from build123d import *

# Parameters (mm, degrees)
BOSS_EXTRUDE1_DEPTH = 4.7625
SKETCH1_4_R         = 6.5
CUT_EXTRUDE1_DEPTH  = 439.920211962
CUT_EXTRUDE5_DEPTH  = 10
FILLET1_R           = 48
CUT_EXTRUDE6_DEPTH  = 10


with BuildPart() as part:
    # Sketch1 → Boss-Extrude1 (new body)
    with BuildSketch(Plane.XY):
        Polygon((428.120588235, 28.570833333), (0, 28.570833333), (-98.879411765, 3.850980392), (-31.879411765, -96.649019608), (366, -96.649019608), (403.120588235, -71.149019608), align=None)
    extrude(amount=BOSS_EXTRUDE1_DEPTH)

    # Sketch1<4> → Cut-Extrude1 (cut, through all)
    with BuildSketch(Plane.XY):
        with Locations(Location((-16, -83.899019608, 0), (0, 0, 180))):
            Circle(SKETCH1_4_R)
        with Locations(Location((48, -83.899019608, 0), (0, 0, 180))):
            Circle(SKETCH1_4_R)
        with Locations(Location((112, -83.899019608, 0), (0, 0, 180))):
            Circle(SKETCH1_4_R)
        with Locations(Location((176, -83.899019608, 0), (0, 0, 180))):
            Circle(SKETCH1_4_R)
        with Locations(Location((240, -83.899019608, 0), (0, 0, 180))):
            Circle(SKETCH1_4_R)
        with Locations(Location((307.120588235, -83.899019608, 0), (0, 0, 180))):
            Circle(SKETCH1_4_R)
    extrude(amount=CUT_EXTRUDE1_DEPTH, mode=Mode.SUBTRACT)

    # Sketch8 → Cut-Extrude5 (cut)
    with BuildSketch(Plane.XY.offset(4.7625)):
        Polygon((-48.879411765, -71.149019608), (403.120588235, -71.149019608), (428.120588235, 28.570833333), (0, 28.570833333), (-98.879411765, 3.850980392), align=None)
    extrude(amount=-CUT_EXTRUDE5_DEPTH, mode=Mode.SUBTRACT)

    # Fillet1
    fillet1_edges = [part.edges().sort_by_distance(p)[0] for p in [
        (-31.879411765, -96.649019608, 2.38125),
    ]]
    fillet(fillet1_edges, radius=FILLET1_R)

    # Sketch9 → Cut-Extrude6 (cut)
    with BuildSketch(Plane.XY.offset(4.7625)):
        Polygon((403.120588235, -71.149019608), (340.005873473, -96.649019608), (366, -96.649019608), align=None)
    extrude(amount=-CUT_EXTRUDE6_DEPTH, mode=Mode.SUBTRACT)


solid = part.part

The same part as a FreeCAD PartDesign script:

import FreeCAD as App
import Part
import Sketcher
Q = App.Units.Quantity


def edges_at(feature, points):
    """Names of the edges that pass closest to the given points."""
    edges = feature.Shape.Edges
    near = lambda p: min(range(len(edges)), key=lambda i: edges[i].distToShape(Part.Vertex(*p))[0])
    return sorted({f"Edge{near(p) + 1}" for p in points})


def add_polygon(sketch, points):
    """Adds a closed chain of lines whose ends are joined by coincident constraints."""
    first, n = sketch.GeometryCount, len(points)
    for a, b in zip(points, points[1:] + points[:1]):
        sketch.addGeometry(Part.LineSegment(App.Vector(*a, 0), App.Vector(*b, 0)), False)
    for i in range(n):
        sketch.addConstraint(Sketcher.Constraint("Coincident", first + i, 2, first + (i + 1) % n, 1))

doc = App.newDocument("Part")
params = doc.addObject("Spreadsheet::Sheet", "Params")
for row, (alias, value) in enumerate([
    ("pad1_length", "4.7625 mm"),
    ("sketch2_diameter", "13 mm"),
    ("sketch3_width", "452 mm"),
    ("pocket2_length", "10 mm"),
    ("fillet_radius", "48 mm"),
    ("pocket3_length", "10 mm"),
], start=1):
    params.set(f"A{row}", alias)
    params.set(f"B{row}", "=" + value)
    params.setAlias(f"B{row}", alias)

body = doc.addObject("PartDesign::Body", "Body")

# Sketch on XY plane
sketch1 = body.newObject("Sketcher::SketchObject", "Sketch")
sketch1.AttachmentSupport = (doc.getObject("XY_Plane"), [""])
sketch1.MapMode = "FlatFace"
add_polygon(sketch1, [(428, 29), (0, 29), (-99, 4), (-32, -97), (366, -97), (403, -71)])  # lines 0-5
sketch1.addConstraint(Sketcher.Constraint("Horizontal", 0))
sketch1.addConstraint(Sketcher.Constraint("Horizontal", 3))
sketch1.addConstraint(Sketcher.Constraint("PointOnObject", 0, 2, -2))
sketch1.addConstraint(Sketcher.Constraint("DistanceX", -1, 1, 3, 2, 366.0))
sketch1.addConstraint(Sketcher.Constraint("DistanceX", 1, 2, 2, 2, 67.0))
sketch1.addConstraint(Sketcher.Constraint("DistanceX", 2, 2, 4, 2, 435.0))
sketch1.addConstraint(Sketcher.Constraint("DistanceY", 4, 2, 1, 2, 75.0))
sketch1.addConstraint(Sketcher.Constraint("DistanceX", 4, 2, 5, 2, 25.0))
sketch1.addConstraint(Sketcher.Constraint("DistanceY", 2, 2, 1, 2, 100.5))
sketch1.addConstraint(Sketcher.Constraint("DistanceX", 0, 2, 0, 1, 428.120588))
sketch1.addConstraint(Sketcher.Constraint("Distance", 5, 102.805881))
sketch1.addConstraint(Sketcher.Constraint("DistanceY", -1, 1, 1, 2, 3.85098))
pad1 = body.newObject("PartDesign::Pad", "Pad")
pad1.Profile = sketch1
pad1.setExpression("Length", "Params.pad1_length")

# Sketch on XY plane
sketch2 = body.newObject("Sketcher::SketchObject", "Sketch001")
sketch2.AttachmentSupport = (doc.getObject("XY_Plane"), [""])
sketch2.MapMode = "FlatFace"
sketch2.addGeometry(Part.Circle(App.Vector(-16, -84, 0), App.Vector(0, 0, 1), 6), False)
sketch2.addGeometry(Part.Circle(App.Vector(48, -84, 0), App.Vector(0, 0, 1), 6), False)
sketch2.addGeometry(Part.Circle(App.Vector(112, -84, 0), App.Vector(0, 0, 1), 6), False)
sketch2.addGeometry(Part.Circle(App.Vector(176, -84, 0), App.Vector(0, 0, 1), 6), False)
sketch2.addGeometry(Part.Circle(App.Vector(240, -84, 0), App.Vector(0, 0, 1), 6), False)
sketch2.addGeometry(Part.Circle(App.Vector(307, -84, 0), App.Vector(0, 0, 1), 6), False)
sketch2.addConstraint(Sketcher.Constraint("Equal", 0, 1))
sketch2.addConstraint(Sketcher.Constraint("Equal", 1, 2))
sketch2.addConstraint(Sketcher.Constraint("Equal", 2, 3))
sketch2.addConstraint(Sketcher.Constraint("Equal", 3, 4))
sketch2.addConstraint(Sketcher.Constraint("Equal", 4, 5))
sketch2.addConstraint(Sketcher.Constraint("Horizontal", 0, 3, 1, 3))
sketch2.addConstraint(Sketcher.Constraint("Horizontal", 1, 3, 2, 3))
sketch2.addConstraint(Sketcher.Constraint("Horizontal", 2, 3, 3, 3))
sketch2.addConstraint(Sketcher.Constraint("Horizontal", 3, 3, 4, 3))
sketch2.addConstraint(Sketcher.Constraint("Horizontal", 4, 3, 5, 3))
sketch2.addConstraint(Sketcher.Constraint("Diameter", 0, 13.0))
sketch2.addConstraint(Sketcher.Constraint("DistanceX", 0, 3, -1, 1, 16.0))
sketch2.addConstraint(Sketcher.Constraint("DistanceX", -1, 1, 1, 3, 48.0))
sketch2.addConstraint(Sketcher.Constraint("DistanceX", -1, 1, 2, 3, 112.0))
sketch2.addConstraint(Sketcher.Constraint("DistanceX", -1, 1, 3, 3, 176.0))
sketch2.addConstraint(Sketcher.Constraint("DistanceX", -1, 1, 4, 3, 240.0))
sketch2.addConstraint(Sketcher.Constraint("DistanceY", 0, 3, -1, 1, 83.89902))
sketch2.addConstraint(Sketcher.Constraint("DistanceX", -1, 1, 5, 3, 307.120588))
sketch2.setExpression("Constraints[10]", "Params.sketch2_diameter")
pocket1 = body.newObject("PartDesign::Pocket", "Pocket")
pocket1.Profile = sketch2
pocket1.Type = "ThroughAll"
pocket1.Reversed = True

# Sketch on XY plane
sketch3 = body.newObject("Sketcher::SketchObject", "Sketch002")
sketch3.AttachmentSupport = (doc.getObject("XY_Plane"), [""])
sketch3.MapMode = "FlatFace"
sketch3.AttachmentOffset = App.Placement(App.Vector(0, 0, 4.7625), App.Rotation())
add_polygon(sketch3, [(-49, -71), (403, -71), (428, 29), (0, 29), (-99, 4)])  # lines 0-4
sketch3.addConstraint(Sketcher.Constraint("Horizontal", 0))
sketch3.addConstraint(Sketcher.Constraint("Horizontal", 2))
sketch3.addConstraint(Sketcher.Constraint("PointOnObject", 2, 2, -2))
sketch3.addConstraint(Sketcher.Constraint("DistanceX", 0, 1, 0, 2, 452.0))
sketch3.addConstraint(Sketcher.Constraint("DistanceX", 0, 2, 1, 2, 25.0))
sketch3.addConstraint(Sketcher.Constraint("DistanceX", 3, 2, 0, 2, 502.0))
sketch3.addConstraint(Sketcher.Constraint("DistanceY", 0, 2, 3, 2, 75.0))
sketch3.addConstraint(Sketcher.Constraint("DistanceX", 2, 2, 2, 1, 428.120588))
sketch3.addConstraint(Sketcher.Constraint("Distance", 1, 102.805881))
sketch3.addConstraint(Sketcher.Constraint("DistanceY", 0, 2, -1, 1, 71.14902))
sketch3.setExpression("Constraints[8]", "Params.sketch3_width")
pocket2 = body.newObject("PartDesign::Pocket", "Pocket001")
pocket2.Profile = sketch3
pocket2.setExpression("Length", "Params.pocket2_length")
doc.recompute()

fillet = body.newObject("PartDesign::Fillet", "Fillet")
fillet.Base = (pocket2, edges_at(pocket2, [(-31.879, -96.649, 2.381)]))
fillet.setExpression("Radius", "Params.fillet_radius")

# Sketch on XY plane
sketch4 = body.newObject("Sketcher::SketchObject", "Sketch003")
sketch4.AttachmentSupport = (doc.getObject("XY_Plane"), [""])
sketch4.MapMode = "FlatFace"
sketch4.AttachmentOffset = App.Placement(App.Vector(0, 0, 4.7625), App.Rotation())
add_polygon(sketch4, [(403, -71), (340, -97), (366, -97)])  # lines 0-2
sketch4.addConstraint(Sketcher.Constraint("Horizontal", 1))
sketch4.addConstraint(Sketcher.Constraint("Angle", 0, Q("-158 deg")))
sketch4.addConstraint(Sketcher.Constraint("DistanceX", -1, 1, 1, 2, 366.0))
sketch4.addConstraint(Sketcher.Constraint("DistanceY", 1, 2, 2, 2, 25.5))
sketch4.addConstraint(Sketcher.Constraint("Distance", 2, 45.035409))
sketch4.addConstraint(Sketcher.Constraint("DistanceY", 0, 2, -1, 1, 96.64902))
pocket3 = body.newObject("PartDesign::Pocket", "Pocket002")
pocket3.Profile = sketch4
pocket3.setExpression("Length", "Params.pocket3_length")

doc.recompute()
